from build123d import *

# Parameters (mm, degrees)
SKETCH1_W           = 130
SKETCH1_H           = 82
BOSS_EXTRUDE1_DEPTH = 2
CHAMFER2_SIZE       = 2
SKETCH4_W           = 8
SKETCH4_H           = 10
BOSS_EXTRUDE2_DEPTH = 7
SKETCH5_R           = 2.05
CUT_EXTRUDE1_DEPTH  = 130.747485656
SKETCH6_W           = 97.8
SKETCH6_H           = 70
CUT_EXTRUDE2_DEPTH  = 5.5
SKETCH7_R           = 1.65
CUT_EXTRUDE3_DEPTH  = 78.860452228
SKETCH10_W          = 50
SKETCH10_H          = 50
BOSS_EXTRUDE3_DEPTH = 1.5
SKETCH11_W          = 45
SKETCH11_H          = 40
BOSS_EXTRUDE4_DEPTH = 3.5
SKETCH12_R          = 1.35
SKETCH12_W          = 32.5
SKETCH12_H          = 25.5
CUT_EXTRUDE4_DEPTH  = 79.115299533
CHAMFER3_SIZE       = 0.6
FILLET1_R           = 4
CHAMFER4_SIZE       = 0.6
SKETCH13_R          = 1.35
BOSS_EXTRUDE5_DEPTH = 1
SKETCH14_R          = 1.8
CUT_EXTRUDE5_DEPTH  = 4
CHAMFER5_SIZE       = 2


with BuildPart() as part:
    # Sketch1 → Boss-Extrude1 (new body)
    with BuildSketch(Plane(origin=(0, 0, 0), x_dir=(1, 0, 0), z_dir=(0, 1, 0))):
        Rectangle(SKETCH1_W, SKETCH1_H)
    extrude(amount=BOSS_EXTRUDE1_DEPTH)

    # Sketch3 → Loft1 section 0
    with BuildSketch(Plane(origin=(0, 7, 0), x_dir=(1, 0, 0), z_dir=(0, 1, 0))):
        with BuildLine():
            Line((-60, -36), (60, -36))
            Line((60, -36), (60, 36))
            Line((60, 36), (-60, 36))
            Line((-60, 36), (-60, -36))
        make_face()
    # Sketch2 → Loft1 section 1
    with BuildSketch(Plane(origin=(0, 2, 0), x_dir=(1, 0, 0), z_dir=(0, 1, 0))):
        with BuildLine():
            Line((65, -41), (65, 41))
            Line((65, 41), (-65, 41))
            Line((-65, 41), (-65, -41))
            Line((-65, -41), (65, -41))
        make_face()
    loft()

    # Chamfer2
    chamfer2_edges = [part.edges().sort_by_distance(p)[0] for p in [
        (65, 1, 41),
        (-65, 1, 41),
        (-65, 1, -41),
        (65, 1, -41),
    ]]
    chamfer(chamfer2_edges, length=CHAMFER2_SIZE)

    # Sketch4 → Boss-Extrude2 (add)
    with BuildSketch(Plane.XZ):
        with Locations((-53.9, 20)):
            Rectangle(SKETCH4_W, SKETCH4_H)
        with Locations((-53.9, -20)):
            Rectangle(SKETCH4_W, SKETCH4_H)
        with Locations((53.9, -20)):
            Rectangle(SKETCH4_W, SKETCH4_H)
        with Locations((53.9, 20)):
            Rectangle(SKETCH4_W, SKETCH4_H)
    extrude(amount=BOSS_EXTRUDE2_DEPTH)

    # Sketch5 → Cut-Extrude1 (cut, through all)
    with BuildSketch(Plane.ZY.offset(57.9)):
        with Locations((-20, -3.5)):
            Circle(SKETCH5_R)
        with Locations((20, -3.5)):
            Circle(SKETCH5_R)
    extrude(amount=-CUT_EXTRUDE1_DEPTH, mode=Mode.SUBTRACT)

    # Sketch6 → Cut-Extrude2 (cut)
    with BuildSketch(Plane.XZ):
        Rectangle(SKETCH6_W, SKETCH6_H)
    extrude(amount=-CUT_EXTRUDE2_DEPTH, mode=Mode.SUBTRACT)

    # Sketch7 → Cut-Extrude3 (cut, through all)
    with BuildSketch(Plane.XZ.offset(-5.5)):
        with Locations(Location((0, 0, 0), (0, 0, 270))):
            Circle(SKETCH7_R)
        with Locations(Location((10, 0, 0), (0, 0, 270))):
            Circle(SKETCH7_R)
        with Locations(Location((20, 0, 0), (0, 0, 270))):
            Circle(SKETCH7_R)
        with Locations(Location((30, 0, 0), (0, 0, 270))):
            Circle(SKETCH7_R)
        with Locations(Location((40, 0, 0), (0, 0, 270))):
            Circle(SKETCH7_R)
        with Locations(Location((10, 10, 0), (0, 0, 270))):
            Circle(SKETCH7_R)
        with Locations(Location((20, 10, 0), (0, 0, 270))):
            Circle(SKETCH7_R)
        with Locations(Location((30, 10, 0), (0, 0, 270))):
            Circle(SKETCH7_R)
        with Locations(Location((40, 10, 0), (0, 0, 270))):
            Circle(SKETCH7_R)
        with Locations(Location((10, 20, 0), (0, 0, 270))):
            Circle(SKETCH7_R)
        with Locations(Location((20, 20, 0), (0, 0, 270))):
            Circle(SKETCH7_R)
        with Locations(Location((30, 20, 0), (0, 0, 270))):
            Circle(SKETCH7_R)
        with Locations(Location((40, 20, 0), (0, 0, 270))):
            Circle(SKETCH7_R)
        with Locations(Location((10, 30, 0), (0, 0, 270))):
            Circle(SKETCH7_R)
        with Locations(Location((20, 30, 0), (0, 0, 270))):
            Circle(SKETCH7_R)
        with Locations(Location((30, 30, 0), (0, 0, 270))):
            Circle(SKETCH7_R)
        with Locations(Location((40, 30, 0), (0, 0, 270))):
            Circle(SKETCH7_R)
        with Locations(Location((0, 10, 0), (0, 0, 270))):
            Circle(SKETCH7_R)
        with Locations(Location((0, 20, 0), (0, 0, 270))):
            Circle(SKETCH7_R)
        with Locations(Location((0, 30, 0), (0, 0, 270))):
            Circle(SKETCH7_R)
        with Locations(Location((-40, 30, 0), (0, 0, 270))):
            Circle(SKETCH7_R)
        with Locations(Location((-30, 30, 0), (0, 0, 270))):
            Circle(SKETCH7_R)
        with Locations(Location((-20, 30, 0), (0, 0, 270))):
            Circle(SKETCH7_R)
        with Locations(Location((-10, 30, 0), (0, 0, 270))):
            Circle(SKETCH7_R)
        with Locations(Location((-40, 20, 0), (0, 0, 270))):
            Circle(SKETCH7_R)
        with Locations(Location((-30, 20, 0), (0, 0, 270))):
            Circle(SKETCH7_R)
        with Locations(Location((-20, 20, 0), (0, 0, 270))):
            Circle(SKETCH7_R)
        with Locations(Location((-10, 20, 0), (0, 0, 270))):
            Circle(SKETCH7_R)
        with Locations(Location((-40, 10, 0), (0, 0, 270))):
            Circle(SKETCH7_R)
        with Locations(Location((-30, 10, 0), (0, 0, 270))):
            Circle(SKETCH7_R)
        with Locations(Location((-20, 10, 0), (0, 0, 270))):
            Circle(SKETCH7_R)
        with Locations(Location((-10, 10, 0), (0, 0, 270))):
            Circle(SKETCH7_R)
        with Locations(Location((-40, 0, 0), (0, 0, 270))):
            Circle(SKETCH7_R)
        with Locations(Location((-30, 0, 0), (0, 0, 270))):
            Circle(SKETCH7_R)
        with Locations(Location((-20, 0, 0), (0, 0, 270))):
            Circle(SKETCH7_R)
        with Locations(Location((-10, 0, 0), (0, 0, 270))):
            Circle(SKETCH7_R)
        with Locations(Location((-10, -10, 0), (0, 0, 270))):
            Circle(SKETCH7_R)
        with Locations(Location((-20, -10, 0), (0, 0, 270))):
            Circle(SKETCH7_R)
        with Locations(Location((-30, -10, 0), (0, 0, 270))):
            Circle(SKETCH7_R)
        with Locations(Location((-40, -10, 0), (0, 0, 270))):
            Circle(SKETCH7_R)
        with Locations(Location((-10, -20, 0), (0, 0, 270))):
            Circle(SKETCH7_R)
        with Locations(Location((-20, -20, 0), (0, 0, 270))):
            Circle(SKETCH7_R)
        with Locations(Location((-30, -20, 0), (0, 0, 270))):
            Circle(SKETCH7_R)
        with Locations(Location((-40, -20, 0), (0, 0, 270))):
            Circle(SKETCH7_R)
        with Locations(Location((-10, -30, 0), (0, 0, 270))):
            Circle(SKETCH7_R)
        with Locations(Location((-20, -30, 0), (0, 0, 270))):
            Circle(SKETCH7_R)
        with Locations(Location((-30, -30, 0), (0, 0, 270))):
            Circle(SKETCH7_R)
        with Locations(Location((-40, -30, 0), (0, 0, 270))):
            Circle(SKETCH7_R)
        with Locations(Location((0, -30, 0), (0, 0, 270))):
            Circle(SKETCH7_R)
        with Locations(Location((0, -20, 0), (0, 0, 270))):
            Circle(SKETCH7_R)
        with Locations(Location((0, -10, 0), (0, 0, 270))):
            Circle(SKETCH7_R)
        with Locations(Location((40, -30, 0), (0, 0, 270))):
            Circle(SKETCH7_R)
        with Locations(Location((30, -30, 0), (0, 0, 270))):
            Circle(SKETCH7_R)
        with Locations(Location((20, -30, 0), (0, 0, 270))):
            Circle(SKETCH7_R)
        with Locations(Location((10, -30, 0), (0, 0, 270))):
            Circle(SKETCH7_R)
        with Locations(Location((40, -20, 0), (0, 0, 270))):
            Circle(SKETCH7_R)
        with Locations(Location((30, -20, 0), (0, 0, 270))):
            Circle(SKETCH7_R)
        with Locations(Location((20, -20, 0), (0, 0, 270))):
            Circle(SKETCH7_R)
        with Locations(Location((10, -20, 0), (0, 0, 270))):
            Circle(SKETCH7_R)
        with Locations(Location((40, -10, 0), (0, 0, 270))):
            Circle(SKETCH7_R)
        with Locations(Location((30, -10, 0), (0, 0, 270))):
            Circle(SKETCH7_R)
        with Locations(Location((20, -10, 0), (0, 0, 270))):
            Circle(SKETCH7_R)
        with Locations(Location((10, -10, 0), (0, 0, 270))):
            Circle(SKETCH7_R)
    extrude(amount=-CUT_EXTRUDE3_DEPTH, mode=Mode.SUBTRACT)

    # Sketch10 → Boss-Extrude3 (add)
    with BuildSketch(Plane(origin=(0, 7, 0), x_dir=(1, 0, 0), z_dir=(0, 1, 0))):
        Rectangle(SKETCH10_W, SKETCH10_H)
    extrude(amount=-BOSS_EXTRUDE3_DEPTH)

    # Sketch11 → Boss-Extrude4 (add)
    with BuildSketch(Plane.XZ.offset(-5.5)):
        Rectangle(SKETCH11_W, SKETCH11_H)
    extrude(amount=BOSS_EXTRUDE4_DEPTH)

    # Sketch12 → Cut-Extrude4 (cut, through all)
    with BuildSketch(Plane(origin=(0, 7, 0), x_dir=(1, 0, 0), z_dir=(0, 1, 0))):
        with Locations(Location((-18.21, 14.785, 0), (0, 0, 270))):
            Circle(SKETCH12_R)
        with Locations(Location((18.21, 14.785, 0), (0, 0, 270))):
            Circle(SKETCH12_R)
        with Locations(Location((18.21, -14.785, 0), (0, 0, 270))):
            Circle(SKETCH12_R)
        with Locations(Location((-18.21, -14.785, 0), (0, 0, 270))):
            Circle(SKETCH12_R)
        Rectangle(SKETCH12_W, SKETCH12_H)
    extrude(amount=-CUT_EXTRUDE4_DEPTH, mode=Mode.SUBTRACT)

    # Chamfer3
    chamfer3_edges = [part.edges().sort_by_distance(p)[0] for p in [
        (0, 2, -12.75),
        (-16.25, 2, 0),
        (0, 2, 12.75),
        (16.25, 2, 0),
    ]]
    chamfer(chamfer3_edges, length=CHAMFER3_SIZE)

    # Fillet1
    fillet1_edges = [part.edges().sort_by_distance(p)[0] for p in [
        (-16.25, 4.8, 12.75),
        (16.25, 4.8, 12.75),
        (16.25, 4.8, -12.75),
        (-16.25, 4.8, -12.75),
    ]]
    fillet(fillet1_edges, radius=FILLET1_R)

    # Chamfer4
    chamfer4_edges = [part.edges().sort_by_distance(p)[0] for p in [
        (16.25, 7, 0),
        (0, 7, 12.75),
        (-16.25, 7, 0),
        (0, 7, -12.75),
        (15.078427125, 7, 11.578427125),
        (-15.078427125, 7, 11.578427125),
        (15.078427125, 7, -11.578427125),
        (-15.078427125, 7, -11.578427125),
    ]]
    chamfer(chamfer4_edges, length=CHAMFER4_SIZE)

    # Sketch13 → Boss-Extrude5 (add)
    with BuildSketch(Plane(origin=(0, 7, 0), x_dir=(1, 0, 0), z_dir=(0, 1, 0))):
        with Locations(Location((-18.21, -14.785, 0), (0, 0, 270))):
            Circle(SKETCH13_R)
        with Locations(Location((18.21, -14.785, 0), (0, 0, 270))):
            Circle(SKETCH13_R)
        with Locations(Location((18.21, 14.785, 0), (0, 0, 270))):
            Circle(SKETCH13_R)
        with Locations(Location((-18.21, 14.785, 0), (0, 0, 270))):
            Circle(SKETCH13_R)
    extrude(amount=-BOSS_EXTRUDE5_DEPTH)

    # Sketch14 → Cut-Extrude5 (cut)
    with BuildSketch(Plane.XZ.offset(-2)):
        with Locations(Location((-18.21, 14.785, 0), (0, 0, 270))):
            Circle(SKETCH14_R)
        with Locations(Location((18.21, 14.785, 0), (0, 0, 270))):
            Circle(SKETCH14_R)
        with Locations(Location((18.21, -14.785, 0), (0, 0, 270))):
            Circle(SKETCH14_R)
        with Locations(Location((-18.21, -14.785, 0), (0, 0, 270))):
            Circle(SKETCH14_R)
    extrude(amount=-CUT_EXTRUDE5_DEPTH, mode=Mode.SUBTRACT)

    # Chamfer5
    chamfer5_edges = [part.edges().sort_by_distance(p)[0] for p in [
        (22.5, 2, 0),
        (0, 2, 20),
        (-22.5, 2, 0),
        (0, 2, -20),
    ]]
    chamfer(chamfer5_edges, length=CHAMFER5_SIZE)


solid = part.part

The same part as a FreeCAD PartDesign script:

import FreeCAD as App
import Part
import Sketcher


def edges_at(feature, points):
    """Names of the edges that pass closest to the given points."""
    edges = feature.Shape.Edges
    near = lambda p: min(range(len(edges)), key=lambda i: edges[i].distToShape(Part.Vertex(*p))[0])
    return sorted({f"Edge{near(p) + 1}" for p in points})


def add_polygon(sketch, points):
    """Adds a closed chain of lines whose ends are joined by coincident constraints."""
    first, n = sketch.GeometryCount, len(points)
    for a, b in zip(points, points[1:] + points[:1]):
        sketch.addGeometry(Part.LineSegment(App.Vector(*a, 0), App.Vector(*b, 0)), False)
    for i in range(n):
        sketch.addConstraint(Sketcher.Constraint("Coincident", first + i, 2, first + (i + 1) % n, 1))

doc = App.newDocument("Part")
body = doc.addObject("PartDesign::Body", "Body")

sketch1 = body.newObject("Sketcher::SketchObject", "Sketch")
sketch1.AttachmentSupport = (doc.getObject("XZ_Plane"), [""])
sketch1.MapMode = "FlatFace"
add_polygon(sketch1, [(-65, -41), (-65, 41), (65, 41), (65, -41)])
sketch1.addConstraint([
    Sketcher.Constraint("Vertical", 0),
    Sketcher.Constraint("Horizontal", 1),
    Sketcher.Constraint("Vertical", 2),
    Sketcher.Constraint("Horizontal", 3),
    Sketcher.Constraint("Symmetric", 0, 2, 2, 2, -1, 1),
    Sketcher.Constraint("DistanceX", 1, 1, 1, 2, 130.0),
    Sketcher.Constraint("DistanceY", 0, 1, 0, 2, 82.0),
])
pad1 = body.newObject("PartDesign::Pad", "Pad")
pad1.Profile = sketch1
pad1.Length = 2
pad1.Reversed = True

sketch2 = body.newObject("Sketcher::SketchObject", "Sketch001")
sketch2.AttachmentSupport = (doc.getObject("XZ_Plane"), [""])
sketch2.MapMode = "FlatFace"
sketch2.AttachmentOffset = App.Placement(App.Vector(0, 0, -7), App.Rotation())
add_polygon(sketch2, [(-60, 36), (60, 36), (60, -36), (-60, -36)])
sketch2.addConstraint([
    Sketcher.Constraint("Horizontal", 0),
    Sketcher.Constraint("Vertical", 1),
    Sketcher.Constraint("Horizontal", 2),
    Sketcher.Constraint("Vertical", 3),
    Sketcher.Constraint("Symmetric", 0, 2, 2, 2, -1, 1),
    Sketcher.Constraint("DistanceX", 0, 1, 0, 2, 120.0),
    Sketcher.Constraint("DistanceY", 1, 2, 1, 1, 72.0),
])

sketch3 = body.newObject("Sketcher::SketchObject", "Sketch002")
sketch3.AttachmentSupport = (doc.getObject("XZ_Plane"), [""])
sketch3.MapMode = "FlatFace"
sketch3.AttachmentOffset = App.Placement(App.Vector(0, 0, -2), App.Rotation())
add_polygon(sketch3, [(65, 41), (65, -41), (-65, -41), (-65, 41)])
sketch3.addConstraint([
    Sketcher.Constraint("Vertical", 0),
    Sketcher.Constraint("Horizontal", 1),
    Sketcher.Constraint("Vertical", 2),
    Sketcher.Constraint("Horizontal", 3),
    Sketcher.Constraint("Symmetric", 0, 2, 2, 2, -1, 1),
    Sketcher.Constraint("DistanceX", 1, 2, 1, 1, 130.0),
    Sketcher.Constraint("DistanceY", 0, 2, 0, 1, 82.0),
])

additiveloft = body.newObject("PartDesign::AdditiveLoft", "AdditiveLoft")
additiveloft.Profile = sketch2
additiveloft.Sections = [sketch3]
doc.recompute()

chamfer = body.newObject("PartDesign::Chamfer", "Chamfer")
chamfer.Base = (additiveloft, edges_at(additiveloft, [
    (65, 1, 41),
    (-65, 1, 41),
    (-65, 1, -41),
    (65, 1, -41),
]))
chamfer.Size = 2

sketch4 = body.newObject("Sketcher::SketchObject", "Sketch003")
sketch4.AttachmentSupport = (doc.getObject("XZ_Plane"), [""])
sketch4.MapMode = "FlatFace"
add_polygon(sketch4, [(-57.9, 25), (-57.9, 15), (-49.9, 15), (-49.9, 25)])
add_polygon(sketch4, [(-57.9, -15), (-57.9, -25), (-49.9, -25), (-49.9, -15)])
add_polygon(sketch4, [(49.9, -15), (49.9, -25), (57.9, -25), (57.9, -15)])
add_polygon(sketch4, [(49.9, 25), (49.9, 15), (57.9, 15), (57.9, 25)])
sketch4.addConstraint([
    Sketcher.Constraint("Vertical", 0),
    Sketcher.Constraint("Horizontal", 1),
    Sketcher.Constraint("Vertical", 2),
    Sketcher.Constraint("Horizontal", 3),
    Sketcher.Constraint("Vertical", 4),
    Sketcher.Constraint("Horizontal", 5),
    Sketcher.Constraint("Vertical", 6),
    Sketcher.Constraint("Horizontal", 7),
    Sketcher.Constraint("Vertical", 8),
    Sketcher.Constraint("Horizontal", 9),
    Sketcher.Constraint("Vertical", 10),
    Sketcher.Constraint("Horizontal", 11),
    Sketcher.Constraint("Vertical", 12),
    Sketcher.Constraint("Horizontal", 13),
    Sketcher.Constraint("Vertical", 14),
    Sketcher.Constraint("Horizontal", 15),
    Sketcher.Constraint("Symmetric", 2, 2, 8, 2, -1, 1),
    Sketcher.Constraint("Symmetric", 0, 2, 10, 2, -1, 1),
    Sketcher.Constraint("Symmetric", 6, 2, 12, 2, -1, 1),
    Sketcher.Constraint("Symmetric", 4, 2, 14, 2, -1, 1),
    Sketcher.Constraint("Symmetric", 5, 2, 8, 2, -2),
    Sketcher.Constraint("Symmetric", 7, 2, 10, 2, -2),
    Sketcher.Constraint("DistanceX", 1, 1, 1, 2, 8.0),
    Sketcher.Constraint("DistanceY", 0, 2, 0, 1, 10.0),
    Sketcher.Constraint("DistanceY", -1, 1, 0, 2, 15.0),
    Sketcher.Constraint("DistanceX", 0, 2, -1, 1, 57.9),
])
pad2 = body.newObject("PartDesign::Pad", "Pad001")
pad2.Profile = sketch4
pad2.Length = 7

sketch5 = body.newObject("Sketcher::SketchObject", "Sketch004")
sketch5.AttachmentSupport = (doc.getObject("YZ_Plane"), [""])
sketch5.MapMode = "FlatFace"
sketch5.AttachmentOffset = App.Placement(App.Vector(0, 0, -57.9), App.Rotation())
sketch5.addGeometry([
    Part.Circle(App.Vector(-3.5, -20, 0), App.Vector(0, 0, 1), 2.05),
    Part.Circle(App.Vector(-3.5, 20, 0), App.Vector(0, 0, 1), 2.05),
], False)
sketch5.addConstraint([
    Sketcher.Constraint("Equal", 0, 1),
    Sketcher.Constraint("Symmetric", 0, 3, 1, 3, -1),
    Sketcher.Constraint("Diameter", 0, 4.1),
    Sketcher.Constraint("DistanceY", 0, 3, -1, 1, 20.0),
    Sketcher.Constraint("DistanceX", 0, 3, -1, 1, 3.5),
])
pocket1 = body.newObject("PartDesign::Pocket", "Pocket")
pocket1.Profile = sketch5
pocket1.Type = "ThroughAll"
pocket1.Reversed = True

sketch6 = body.newObject("Sketcher::SketchObject", "Sketch005")
sketch6.AttachmentSupport = (doc.getObject("XZ_Plane"), [""])
sketch6.MapMode = "FlatFace"
add_polygon(sketch6, [(-48.9, 35), (-48.9, -35), (48.9, -35), (48.9, 35)])
sketch6.addConstraint([
    Sketcher.Constraint("Vertical", 0),
    Sketcher.Constraint("Horizontal", 1),
    Sketcher.Constraint("Vertical", 2),
    Sketcher.Constraint("Horizontal", 3),
    Sketcher.Constraint("Symmetric", 0, 2, 2, 2, -1, 1),
    Sketcher.Constraint("DistanceY", 0, 2, 0, 1, 70.0),
    Sketcher.Constraint("DistanceX", 1, 1, 1, 2, 97.8),
])
pocket2 = body.newObject("PartDesign::Pocket", "Pocket001")
pocket2.Profile = sketch6
pocket2.Length = 5.5

sketch7 = body.newObject("Sketcher::SketchObject", "Sketch006")
sketch7.AttachmentSupport = (doc.getObject("XZ_Plane"), [""])
sketch7.MapMode = "FlatFace"
sketch7.AttachmentOffset = App.Placement(App.Vector(0, 0, -5.5), App.Rotation())
sketch7.addGeometry([
    Part.Circle(App.Vector(0, 0, 0), App.Vector(0, 0, 1), 1.65),
    Part.Circle(App.Vector(10, 0, 0), App.Vector(0, 0, 1), 1.65),
    Part.Circle(App.Vector(20, 0, 0), App.Vector(0, 0, 1), 1.65),
    Part.Circle(App.Vector(30, 0, 0), App.Vector(0, 0, 1), 1.65),
    Part.Circle(App.Vector(40, 0, 0), App.Vector(0, 0, 1), 1.65),
    Part.Circle(App.Vector(10, 10, 0), App.Vector(0, 0, 1), 1.65),
    Part.Circle(App.Vector(20, 10, 0), App.Vector(0, 0, 1), 1.65),
    Part.Circle(App.Vector(30, 10, 0), App.Vector(0, 0, 1), 1.65),
    Part.Circle(App.Vector(40, 10, 0), App.Vector(0, 0, 1), 1.65),
    Part.Circle(App.Vector(10, 20, 0), App.Vector(0, 0, 1), 1.65),
    Part.Circle(App.Vector(20, 20, 0), App.Vector(0, 0, 1), 1.65),
    Part.Circle(App.Vector(30, 20, 0), App.Vector(0, 0, 1), 1.65),
    Part.Circle(App.Vector(40, 20, 0), App.Vector(0, 0, 1), 1.65),
    Part.Circle(App.Vector(10, 30, 0), App.Vector(0, 0, 1), 1.65),
    Part.Circle(App.Vector(20, 30, 0), App.Vector(0, 0, 1), 1.65),
    Part.Circle(App.Vector(30, 30, 0), App.Vector(0, 0, 1), 1.65),
    Part.Circle(App.Vector(40, 30, 0), App.Vector(0, 0, 1), 1.65),
    Part.Circle(App.Vector(0, 10, 0), App.Vector(0, 0, 1), 1.65),
    Part.Circle(App.Vector(0, 20, 0), App.Vector(0, 0, 1), 1.65),
    Part.Circle(App.Vector(0, 30, 0), App.Vector(0, 0, 1), 1.65),
    Part.Circle(App.Vector(-40, 30, 0), App.Vector(0, 0, 1), 1.65),
    Part.Circle(App.Vector(-30, 30, 0), App.Vector(0, 0, 1), 1.65),
    Part.Circle(App.Vector(-20, 30, 0), App.Vector(0, 0, 1), 1.65),
    Part.Circle(App.Vector(-10, 30, 0), App.Vector(0, 0, 1), 1.65),
    Part.Circle(App.Vector(-40, 20, 0), App.Vector(0, 0, 1), 1.65),
    Part.Circle(App.Vector(-30, 20, 0), App.Vector(0, 0, 1), 1.65),
    Part.Circle(App.Vector(-20, 20, 0), App.Vector(0, 0, 1), 1.65),
    Part.Circle(App.Vector(-10, 20, 0), App.Vector(0, 0, 1), 1.65),
    Part.Circle(App.Vector(-40, 10, 0), App.Vector(0, 0, 1), 1.65),
    Part.Circle(App.Vector(-30, 10, 0), App.Vector(0, 0, 1), 1.65),
    Part.Circle(App.Vector(-20, 10, 0), App.Vector(0, 0, 1), 1.65),
    Part.Circle(App.Vector(-10, 10, 0), App.Vector(0, 0, 1), 1.65),
    Part.Circle(App.Vector(-40, 0, 0), App.Vector(0, 0, 1), 1.65),
    Part.Circle(App.Vector(-30, 0, 0), App.Vector(0, 0, 1), 1.65),
    Part.Circle(App.Vector(-20, 0, 0), App.Vector(0, 0, 1), 1.65),
    Part.Circle(App.Vector(-10, 0, 0), App.Vector(0, 0, 1), 1.65),
    Part.Circle(App.Vector(-10, -10, 0), App.Vector(0, 0, 1), 1.65),
    Part.Circle(App.Vector(-20, -10, 0), App.Vector(0, 0, 1), 1.65),
    Part.Circle(App.Vector(-30, -10, 0), App.Vector(0, 0, 1), 1.65),
    Part.Circle(App.Vector(-40, -10, 0), App.Vector(0, 0, 1), 1.65),
    Part.Circle(App.Vector(-10, -20, 0), App.Vector(0, 0, 1), 1.65),
    Part.Circle(App.Vector(-20, -20, 0), App.Vector(0, 0, 1), 1.65),
    Part.Circle(App.Vector(-30, -20, 0), App.Vector(0, 0, 1), 1.65),
    Part.Circle(App.Vector(-40, -20, 0), App.Vector(0, 0, 1), 1.65),
    Part.Circle(App.Vector(-10, -30, 0), App.Vector(0, 0, 1), 1.65),
    Part.Circle(App.Vector(-20, -30, 0), App.Vector(0, 0, 1), 1.65),
    Part.Circle(App.Vector(-30, -30, 0), App.Vector(0, 0, 1), 1.65),
    Part.Circle(App.Vector(-40, -30, 0), App.Vector(0, 0, 1), 1.65),
    Part.Circle(App.Vector(0, -30, 0), App.Vector(0, 0, 1), 1.65),
    Part.Circle(App.Vector(0, -20, 0), App.Vector(0, 0, 1), 1.65),
    Part.Circle(App.Vector(0, -10, 0), App.Vector(0, 0, 1), 1.65),
    Part.Circle(App.Vector(40, -30, 0), App.Vector(0, 0, 1), 1.65),
    Part.Circle(App.Vector(30, -30, 0), App.Vector(0, 0, 1), 1.65),
    Part.Circle(App.Vector(20, -30, 0), App.Vector(0, 0, 1), 1.65),
    Part.Circle(App.Vector(10, -30, 0), App.Vector(0, 0, 1), 1.65),
    Part.Circle(App.Vector(40, -20, 0), App.Vector(0, 0, 1), 1.65),
    Part.Circle(App.Vector(30, -20, 0), App.Vector(0, 0, 1), 1.65),
    Part.Circle(App.Vector(20, -20, 0), App.Vector(0, 0, 1), 1.65),
    Part.Circle(App.Vector(10, -20, 0), App.Vector(0, 0, 1), 1.65),
    Part.Circle(App.Vector(40, -10, 0), App.Vector(0, 0, 1), 1.65),
    Part.Circle(App.Vector(30, -10, 0), App.Vector(0, 0, 1), 1.65),
    Part.Circle(App.Vector(20, -10, 0), App.Vector(0, 0, 1), 1.65),
    Part.Circle(App.Vector(10, -10, 0), App.Vector(0, 0, 1), 1.65),
], False)
sketch7.addConstraint([
    Sketcher.Constraint("Coincident", 0, 3, -1, 1),
    Sketcher.Constraint("Equal", 0, 1),
    Sketcher.Constraint("Equal", 1, 2),
    Sketcher.Constraint("Equal", 2, 3),
    Sketcher.Constraint("Equal", 3, 4),
    Sketcher.Constraint("Equal", 4, 5),
    Sketcher.Constraint("Equal", 5, 6),
    Sketcher.Constraint("Equal", 6, 7),
    Sketcher.Constraint("Equal", 7, 8),
    Sketcher.Constraint("Equal", 8, 9),
    Sketcher.Constraint("Equal", 9, 10),
    Sketcher.Constraint("Equal", 10, 11),
    Sketcher.Constraint("Equal", 11, 12),
    Sketcher.Constraint("Equal", 12, 13),
    Sketcher.Constraint("Equal", 13, 14),
    Sketcher.Constraint("Equal", 14, 15),
    Sketcher.Constraint("Equal", 15, 16),
    Sketcher.Constraint("Equal", 16, 17),
    Sketcher.Constraint("Equal", 17, 18),
    Sketcher.Constraint("Equal", 18, 19),
    Sketcher.Constraint("Equal", 19, 20),
    Sketcher.Constraint("Equal", 20, 21),
    Sketcher.Constraint("Equal", 21, 22),
    Sketcher.Constraint("Equal", 22, 23),
    Sketcher.Constraint("Equal", 23, 24),
    Sketcher.Constraint("Equal", 24, 25),
    Sketcher.Constraint("Equal", 25, 26),
    Sketcher.Constraint("Equal", 26, 27),
    Sketcher.Constraint("Equal", 27, 28),
    Sketcher.Constraint("Equal", 28, 29),
    Sketcher.Constraint("Equal", 29, 30),
    Sketcher.Constraint("Equal", 30, 31),
    Sketcher.Constraint("Equal", 31, 32),
    Sketcher.Constraint("Equal", 32, 33),
    Sketcher.Constraint("Equal", 33, 34),
    Sketcher.Constraint("Equal", 34, 35),
    Sketcher.Constraint("Equal", 35, 36),
    Sketcher.Constraint("Equal", 36, 37),
    Sketcher.Constraint("Equal", 37, 38),
    Sketcher.Constraint("Equal", 38, 39),
    Sketcher.Constraint("Equal", 39, 40),
    Sketcher.Constraint("Equal", 40, 41),
    Sketcher.Constraint("Equal", 41, 42),
    Sketcher.Constraint("Equal", 42, 43),
    Sketcher.Constraint("Equal", 43, 44),
    Sketcher.Constraint("Equal", 44, 45),
    Sketcher.Constraint("Equal", 45, 46),
    Sketcher.Constraint("Equal", 46, 47),
    Sketcher.Constraint("Equal", 47, 48),
    Sketcher.Constraint("Equal", 48, 49),
    Sketcher.Constraint("Equal", 49, 50),
    Sketcher.Constraint("Equal", 50, 51),
    Sketcher.Constraint("Equal", 51, 52),
    Sketcher.Constraint("Equal", 52, 53),
    Sketcher.Constraint("Equal", 53, 54),
    Sketcher.Constraint("Equal", 54, 55),
    Sketcher.Constraint("Equal", 55, 56),
    Sketcher.Constraint("Equal", 56, 57),
    Sketcher.Constraint("Equal", 57, 58),
    Sketcher.Constraint("Equal", 58, 59),
    Sketcher.Constraint("Equal", 59, 60),
    Sketcher.Constraint("Equal", 60, 61),
    Sketcher.Constraint("Equal", 61, 62),
    Sketcher.Constraint("Symmetric", 4, 3, 32, 3, -1, 1),
    Sketcher.Constraint("Symmetric", 3, 3, 33, 3, -1, 1),
    Sketcher.Constraint("Symmetric", 2, 3, 34, 3, -1, 1),
    Sketcher.Constraint("Symmetric", 1, 3, 35, 3, -1, 1),
    Sketcher.Constraint("Symmetric", 5, 3, 36, 3, -1, 1),
    Sketcher.Constraint("Symmetric", 6, 3, 37, 3, -1, 1),
    Sketcher.Constraint("Symmetric", 7, 3, 38, 3, -1, 1),
    Sketcher.Constraint("Symmetric", 8, 3, 39, 3, -1, 1),
    Sketcher.Constraint("Symmetric", 9, 3, 40, 3, -1, 1),
    Sketcher.Constraint("Symmetric", 10, 3, 41, 3, -1, 1),
    Sketcher.Constraint("Symmetric", 11, 3, 42, 3, -1, 1),
    Sketcher.Constraint("Symmetric", 12, 3, 43, 3, -1, 1),
    Sketcher.Constraint("Symmetric", 13, 3, 44, 3, -1, 1),
    Sketcher.Constraint("Symmetric", 14, 3, 45, 3, -1, 1),
    Sketcher.Constraint("Symmetric", 15, 3, 46, 3, -1, 1),
    Sketcher.Constraint("Symmetric", 16, 3, 47, 3, -1, 1),
    Sketcher.Constraint("Symmetric", 19, 3, 48, 3, -1, 1),
    Sketcher.Constraint("Symmetric", 18, 3, 49, 3, -1, 1),
    Sketcher.Constraint("Symmetric", 17, 3, 50, 3, -1, 1),
    Sketcher.Constraint("Symmetric", 20, 3, 51, 3, -1, 1),
    Sketcher.Constraint("Symmetric", 21, 3, 52, 3, -1, 1),
    Sketcher.Constraint("Symmetric", 22, 3, 53, 3, -1, 1),
    Sketcher.Constraint("Symmetric", 23, 3, 54, 3, -1, 1),
    Sketcher.Constraint("Symmetric", 24, 3, 55, 3, -1, 1),
    Sketcher.Constraint("Symmetric", 25, 3, 56, 3, -1, 1),
    Sketcher.Constraint("Symmetric", 26, 3, 57, 3, -1, 1),
    Sketcher.Constraint("Symmetric", 27, 3, 58, 3, -1, 1),
    Sketcher.Constraint("Symmetric", 28, 3, 59, 3, -1, 1),
    Sketcher.Constraint("Symmetric", 29, 3, 60, 3, -1, 1),
    Sketcher.Constraint("Symmetric", 30, 3, 61, 3, -1, 1),
    Sketcher.Constraint("Symmetric", 31, 3, 62, 3, -1, 1),
    Sketcher.Constraint("Symmetric", 16, 3, 20, 3, -2),
    Sketcher.Constraint("Symmetric", 15, 3, 21, 3, -2),
    Sketcher.Constraint("Symmetric", 14, 3, 22, 3, -2),
    Sketcher.Constraint("Symmetric", 13, 3, 23, 3, -2),
    Sketcher.Constraint("Symmetric", 12, 3, 24, 3, -2),
    Sketcher.Constraint("Symmetric", 11, 3, 25, 3, -2),
    Sketcher.Constraint("Symmetric", 10, 3, 26, 3, -2),
    Sketcher.Constraint("Symmetric", 9, 3, 27, 3, -2),
    Sketcher.Constraint("Symmetric", 8, 3, 28, 3, -2),
    Sketcher.Constraint("Symmetric", 7, 3, 29, 3, -2),
    Sketcher.Constraint("Symmetric", 6, 3, 30, 3, -2),
    Sketcher.Constraint("Symmetric", 5, 3, 31, 3, -2),
    Sketcher.Constraint("PointOnObject", 1, 3, -1),
    Sketcher.Constraint("PointOnObject", 2, 3, -1),
    Sketcher.Constraint("PointOnObject", 3, 3, -1),
    Sketcher.Constraint("PointOnObject", 4, 3, -1),
    Sketcher.Constraint("PointOnObject", 17, 3, -2),
    Sketcher.Constraint("PointOnObject", 18, 3, -2),
    Sketcher.Constraint("PointOnObject", 19, 3, -2),
    Sketcher.Constraint("Horizontal", 5, 3, 6, 3),
    Sketcher.Constraint("Horizontal", 6, 3, 7, 3),
    Sketcher.Constraint("Horizontal", 7, 3, 8, 3),
    Sketcher.Constraint("Horizontal", 9, 3, 10, 3),
    Sketcher.Constraint("Horizontal", 10, 3, 11, 3),
    Sketcher.Constraint("Horizontal", 11, 3, 12, 3),
    Sketcher.Constraint("Horizontal", 13, 3, 14, 3),
    Sketcher.Constraint("Horizontal", 14, 3, 15, 3),
    Sketcher.Constraint("Horizontal", 15, 3, 16, 3),
    Sketcher.Constraint("Horizontal", 8, 3, 17, 3),
    Sketcher.Constraint("Horizontal", 12, 3, 18, 3),
    Sketcher.Constraint("Horizontal", 16, 3, 19, 3),
    Sketcher.Constraint("Vertical", 1, 3, 5, 3),
    Sketcher.Constraint("Vertical", 2, 3, 6, 3),
    Sketcher.Constraint("Vertical", 3, 3, 7, 3),
    Sketcher.Constraint("Vertical", 4, 3, 8, 3),
    Sketcher.Constraint("Vertical", 5, 3, 9, 3),
    Sketcher.Constraint("Vertical", 6, 3, 10, 3),
    Sketcher.Constraint("Vertical", 7, 3, 11, 3),
    Sketcher.Constraint("Vertical", 8, 3, 12, 3),
    Sketcher.Constraint("Vertical", 9, 3, 13, 3),
    Sketcher.Constraint("Vertical", 10, 3, 14, 3),
    Sketcher.Constraint("Vertical", 11, 3, 15, 3),
    Sketcher.Constraint("Vertical", 12, 3, 16, 3),
    Sketcher.Constraint("Diameter", 0, 3.3),
    Sketcher.Constraint("DistanceX", -1, 1, 1, 3, 10.0),
    Sketcher.Constraint("DistanceX", -1, 1, 2, 3, 20.0),
    Sketcher.Constraint("DistanceX", -1, 1, 3, 3, 30.0),
    Sketcher.Constraint("DistanceX", -1, 1, 4, 3, 40.0),
    Sketcher.Constraint("DistanceY", -1, 1, 5, 3, 10.0),
    Sketcher.Constraint("DistanceY", -1, 1, 9, 3, 20.0),
    Sketcher.Constraint("DistanceY", -1, 1, 13, 3, 30.0),
])
pocket3 = body.newObject("PartDesign::Pocket", "Pocket002")
pocket3.Profile = sketch7
pocket3.Type = "ThroughAll"

sketch8 = body.newObject("Sketcher::SketchObject", "Sketch007")
sketch8.AttachmentSupport = (doc.getObject("XZ_Plane"), [""])
sketch8.MapMode = "FlatFace"
sketch8.AttachmentOffset = App.Placement(App.Vector(0, 0, -7), App.Rotation())
add_polygon(sketch8, [(-25, -25), (-25, 25), (25, 25), (25, -25)])
sketch8.addConstraint([
    Sketcher.Constraint("Vertical", 0),
    Sketcher.Constraint("Horizontal", 1),
    Sketcher.Constraint("Vertical", 2),
    Sketcher.Constraint("Horizontal", 3),
    Sketcher.Constraint("Symmetric", 0, 2, 2, 2, -1, 1),
    Sketcher.Constraint("Equal", 3, 0),
    Sketcher.Constraint("DistanceX", 1, 1, 1, 2, 50.0),
])
pad3 = body.newObject("PartDesign::Pad", "Pad002")
pad3.Profile = sketch8
pad3.Length = 1.5

sketch9 = body.newObject("Sketcher::SketchObject", "Sketch008")
sketch9.AttachmentSupport = (doc.getObject("XZ_Plane"), [""])
sketch9.MapMode = "FlatFace"
sketch9.AttachmentOffset = App.Placement(App.Vector(0, 0, -5.5), App.Rotation())
add_polygon(sketch9, [(-22.5, 20), (-22.5, -20), (22.5, -20), (22.5, 20)])
sketch9.addConstraint([
    Sketcher.Constraint("Vertical", 0),
    Sketcher.Constraint("Horizontal", 1),
    Sketcher.Constraint("Vertical", 2),
    Sketcher.Constraint("Horizontal", 3),
    Sketcher.Constraint("Symmetric", 0, 2, 2, 2, -1, 1),
    Sketcher.Constraint("DistanceX", 1, 1, 1, 2, 45.0),
    Sketcher.Constraint("DistanceY", 0, 2, 0, 1, 40.0),
])
pad4 = body.newObject("PartDesign::Pad", "Pad003")
pad4.Profile = sketch9
pad4.Length = 3.5

sketch10 = body.newObject("Sketcher::SketchObject", "Sketch009")
sketch10.AttachmentSupport = (doc.getObject("XZ_Plane"), [""])
sketch10.MapMode = "FlatFace"
sketch10.AttachmentOffset = App.Placement(App.Vector(0, 0, -7), App.Rotation())
sketch10.addGeometry(Part.Circle(App.Vector(-18.21, -14.785, 0), App.Vector(0, 0, 1), 1.35), False)
sketch10.addGeometry(Part.Circle(App.Vector(18.21, -14.785, 0), App.Vector(0, 0, 1), 1.35), False)
sketch10.addGeometry(Part.Circle(App.Vector(18.21, 14.785, 0), App.Vector(0, 0, 1), 1.35), False)
sketch10.addGeometry(Part.Circle(App.Vector(-18.21, 14.785, 0), App.Vector(0, 0, 1), 1.35), False)
add_polygon(sketch10, [(-16.25, -12.75), (-16.25, 12.75), (16.25, 12.75), (16.25, -12.75)])
sketch10.addConstraint([
    Sketcher.Constraint("Vertical", 4),
    Sketcher.Constraint("Horizontal", 5),
    Sketcher.Constraint("Vertical", 6),
    Sketcher.Constraint("Horizontal", 7),
    Sketcher.Constraint("Equal", 0, 1),
    Sketcher.Constraint("Equal", 1, 2),
    Sketcher.Constraint("Equal", 2, 3),
    Sketcher.Constraint("Symmetric", 0, 3, 2, 3, -1, 1),
    Sketcher.Constraint("Symmetric", 1, 3, 3, 3, -1, 1),
    Sketcher.Constraint("Symmetric", 4, 2, 6, 2, -1, 1),
    Sketcher.Constraint("Symmetric", 0, 3, 1, 3, -2),
    Sketcher.Constraint("Diameter", 0, 2.7),
    Sketcher.Constraint("DistanceX", 5, 1, 5, 2, 32.5),
    Sketcher.Constraint("DistanceY", 4, 1, 4, 2, 25.5),
    Sketcher.Constraint("DistanceX", 0, 3, -1, 1, 18.21),
    Sketcher.Constraint("DistanceY", 1, 3, 2, 3, 29.57),
])
pocket4 = body.newObject("PartDesign::Pocket", "Pocket003")
pocket4.Profile = sketch10
pocket4.Type = "ThroughAll"
pocket4.Reversed = True
doc.recompute()

chamfer2 = body.newObject("PartDesign::Chamfer", "Chamfer001")
chamfer2.Base = (pocket4, edges_at(pocket4, [
    (0, 2, -12.75),
    (-16.25, 2, 0),
    (0, 2, 12.75),
    (16.25, 2, 0),
]))
chamfer2.Size = 0.6
doc.recompute()

fillet = body.newObject("PartDesign::Fillet", "Fillet")
fillet.Base = (chamfer2, edges_at(chamfer2, [
    (-16.25, 4.8, 12.75),
    (16.25, 4.8, 12.75),
    (16.25, 4.8, -12.75),
    (-16.25, 4.8, -12.75),
]))
fillet.Radius = 4
doc.recompute()

chamfer3 = body.newObject("PartDesign::Chamfer", "Chamfer002")
chamfer3.Base = (fillet, edges_at(fillet, [
    (16.25, 7, 0),
    (0, 7, 12.75),
    (-16.25, 7, 0),
    (0, 7, -12.75),
    (15.078, 7, 11.578),
    (-15.078, 7, 11.578),
    (15.078, 7, -11.578),
    (-15.078, 7, -11.578),
]))
chamfer3.Size = 0.6

sketch11 = body.newObject("Sketcher::SketchObject", "Sketch010")
sketch11.AttachmentSupport = (doc.getObject("XZ_Plane"), [""])
sketch11.MapMode = "FlatFace"
sketch11.AttachmentOffset = App.Placement(App.Vector(0, 0, -7), App.Rotation())
sketch11.addGeometry([
    Part.Circle(App.Vector(-18.21, 14.785, 0), App.Vector(0, 0, 1), 1.35),
    Part.Circle(App.Vector(18.21, 14.785, 0), App.Vector(0, 0, 1), 1.35),
    Part.Circle(App.Vector(18.21, -14.785, 0), App.Vector(0, 0, 1), 1.35),
    Part.Circle(App.Vector(-18.21, -14.785, 0), App.Vector(0, 0, 1), 1.35),
], False)
sketch11.addConstraint([
    Sketcher.Constraint("Equal", 0, 1),
    Sketcher.Constraint("Equal", 1, 2),
    Sketcher.Constraint("Equal", 2, 3),
    Sketcher.Constraint("Symmetric", 0, 3, 2, 3, -1, 1),
    Sketcher.Constraint("Symmetric", 1, 3, 3, 3, -1, 1),
    Sketcher.Constraint("Symmetric", 0, 3, 1, 3, -2),
    Sketcher.Constraint("Diameter", 0, 2.7),
    Sketcher.Constraint("DistanceX", 0, 3, -1, 1, 18.21),
    Sketcher.Constraint("DistanceY", 2, 3, 1, 3, 29.57),
])
pad5 = body.newObject("PartDesign::Pad", "Pad004")
pad5.Profile = sketch11
pad5.Length = 1

sketch12 = body.newObject("Sketcher::SketchObject", "Sketch011")
sketch12.AttachmentSupport = (doc.getObject("XZ_Plane"), [""])
sketch12.MapMode = "FlatFace"
sketch12.AttachmentOffset = App.Placement(App.Vector(0, 0, -2), App.Rotation())
sketch12.addGeometry([
    Part.Circle(App.Vector(-18.21, 14.785, 0), App.Vector(0, 0, 1), 1.8),
    Part.Circle(App.Vector(18.21, 14.785, 0), App.Vector(0, 0, 1), 1.8),
    Part.Circle(App.Vector(18.21, -14.785, 0), App.Vector(0, 0, 1), 1.8),
    Part.Circle(App.Vector(-18.21, -14.785, 0), App.Vector(0, 0, 1), 1.8),
], False)
sketch12.addConstraint([
    Sketcher.Constraint("Equal", 0, 1),
    Sketcher.Constraint("Equal", 1, 2),
    Sketcher.Constraint("Equal", 2, 3),
    Sketcher.Constraint("Symmetric", 0, 3, 2, 3, -1, 1),
    Sketcher.Constraint("Symmetric", 1, 3, 3, 3, -1, 1),
    Sketcher.Constraint("Symmetric", 0, 3, 1, 3, -2),
    Sketcher.Constraint("Diameter", 0, 3.6),
    Sketcher.Constraint("DistanceX", 0, 3, -1, 1, 18.21),
    Sketcher.Constraint("DistanceY", 2, 3, 1, 3, 29.57),
])
pocket5 = body.newObject("PartDesign::Pocket", "Pocket004")
pocket5.Profile = sketch12
pocket5.Length = 4
doc.recompute()

chamfer4 = body.newObject("PartDesign::Chamfer", "Chamfer003")
chamfer4.Base = (pocket5, edges_at(pocket5, [
    (22.5, 2, 0),
    (0, 2, 20),
    (-22.5, 2, 0),
    (0, 2, -20),
]))
chamfer4.Size = 2

doc.recompute()
